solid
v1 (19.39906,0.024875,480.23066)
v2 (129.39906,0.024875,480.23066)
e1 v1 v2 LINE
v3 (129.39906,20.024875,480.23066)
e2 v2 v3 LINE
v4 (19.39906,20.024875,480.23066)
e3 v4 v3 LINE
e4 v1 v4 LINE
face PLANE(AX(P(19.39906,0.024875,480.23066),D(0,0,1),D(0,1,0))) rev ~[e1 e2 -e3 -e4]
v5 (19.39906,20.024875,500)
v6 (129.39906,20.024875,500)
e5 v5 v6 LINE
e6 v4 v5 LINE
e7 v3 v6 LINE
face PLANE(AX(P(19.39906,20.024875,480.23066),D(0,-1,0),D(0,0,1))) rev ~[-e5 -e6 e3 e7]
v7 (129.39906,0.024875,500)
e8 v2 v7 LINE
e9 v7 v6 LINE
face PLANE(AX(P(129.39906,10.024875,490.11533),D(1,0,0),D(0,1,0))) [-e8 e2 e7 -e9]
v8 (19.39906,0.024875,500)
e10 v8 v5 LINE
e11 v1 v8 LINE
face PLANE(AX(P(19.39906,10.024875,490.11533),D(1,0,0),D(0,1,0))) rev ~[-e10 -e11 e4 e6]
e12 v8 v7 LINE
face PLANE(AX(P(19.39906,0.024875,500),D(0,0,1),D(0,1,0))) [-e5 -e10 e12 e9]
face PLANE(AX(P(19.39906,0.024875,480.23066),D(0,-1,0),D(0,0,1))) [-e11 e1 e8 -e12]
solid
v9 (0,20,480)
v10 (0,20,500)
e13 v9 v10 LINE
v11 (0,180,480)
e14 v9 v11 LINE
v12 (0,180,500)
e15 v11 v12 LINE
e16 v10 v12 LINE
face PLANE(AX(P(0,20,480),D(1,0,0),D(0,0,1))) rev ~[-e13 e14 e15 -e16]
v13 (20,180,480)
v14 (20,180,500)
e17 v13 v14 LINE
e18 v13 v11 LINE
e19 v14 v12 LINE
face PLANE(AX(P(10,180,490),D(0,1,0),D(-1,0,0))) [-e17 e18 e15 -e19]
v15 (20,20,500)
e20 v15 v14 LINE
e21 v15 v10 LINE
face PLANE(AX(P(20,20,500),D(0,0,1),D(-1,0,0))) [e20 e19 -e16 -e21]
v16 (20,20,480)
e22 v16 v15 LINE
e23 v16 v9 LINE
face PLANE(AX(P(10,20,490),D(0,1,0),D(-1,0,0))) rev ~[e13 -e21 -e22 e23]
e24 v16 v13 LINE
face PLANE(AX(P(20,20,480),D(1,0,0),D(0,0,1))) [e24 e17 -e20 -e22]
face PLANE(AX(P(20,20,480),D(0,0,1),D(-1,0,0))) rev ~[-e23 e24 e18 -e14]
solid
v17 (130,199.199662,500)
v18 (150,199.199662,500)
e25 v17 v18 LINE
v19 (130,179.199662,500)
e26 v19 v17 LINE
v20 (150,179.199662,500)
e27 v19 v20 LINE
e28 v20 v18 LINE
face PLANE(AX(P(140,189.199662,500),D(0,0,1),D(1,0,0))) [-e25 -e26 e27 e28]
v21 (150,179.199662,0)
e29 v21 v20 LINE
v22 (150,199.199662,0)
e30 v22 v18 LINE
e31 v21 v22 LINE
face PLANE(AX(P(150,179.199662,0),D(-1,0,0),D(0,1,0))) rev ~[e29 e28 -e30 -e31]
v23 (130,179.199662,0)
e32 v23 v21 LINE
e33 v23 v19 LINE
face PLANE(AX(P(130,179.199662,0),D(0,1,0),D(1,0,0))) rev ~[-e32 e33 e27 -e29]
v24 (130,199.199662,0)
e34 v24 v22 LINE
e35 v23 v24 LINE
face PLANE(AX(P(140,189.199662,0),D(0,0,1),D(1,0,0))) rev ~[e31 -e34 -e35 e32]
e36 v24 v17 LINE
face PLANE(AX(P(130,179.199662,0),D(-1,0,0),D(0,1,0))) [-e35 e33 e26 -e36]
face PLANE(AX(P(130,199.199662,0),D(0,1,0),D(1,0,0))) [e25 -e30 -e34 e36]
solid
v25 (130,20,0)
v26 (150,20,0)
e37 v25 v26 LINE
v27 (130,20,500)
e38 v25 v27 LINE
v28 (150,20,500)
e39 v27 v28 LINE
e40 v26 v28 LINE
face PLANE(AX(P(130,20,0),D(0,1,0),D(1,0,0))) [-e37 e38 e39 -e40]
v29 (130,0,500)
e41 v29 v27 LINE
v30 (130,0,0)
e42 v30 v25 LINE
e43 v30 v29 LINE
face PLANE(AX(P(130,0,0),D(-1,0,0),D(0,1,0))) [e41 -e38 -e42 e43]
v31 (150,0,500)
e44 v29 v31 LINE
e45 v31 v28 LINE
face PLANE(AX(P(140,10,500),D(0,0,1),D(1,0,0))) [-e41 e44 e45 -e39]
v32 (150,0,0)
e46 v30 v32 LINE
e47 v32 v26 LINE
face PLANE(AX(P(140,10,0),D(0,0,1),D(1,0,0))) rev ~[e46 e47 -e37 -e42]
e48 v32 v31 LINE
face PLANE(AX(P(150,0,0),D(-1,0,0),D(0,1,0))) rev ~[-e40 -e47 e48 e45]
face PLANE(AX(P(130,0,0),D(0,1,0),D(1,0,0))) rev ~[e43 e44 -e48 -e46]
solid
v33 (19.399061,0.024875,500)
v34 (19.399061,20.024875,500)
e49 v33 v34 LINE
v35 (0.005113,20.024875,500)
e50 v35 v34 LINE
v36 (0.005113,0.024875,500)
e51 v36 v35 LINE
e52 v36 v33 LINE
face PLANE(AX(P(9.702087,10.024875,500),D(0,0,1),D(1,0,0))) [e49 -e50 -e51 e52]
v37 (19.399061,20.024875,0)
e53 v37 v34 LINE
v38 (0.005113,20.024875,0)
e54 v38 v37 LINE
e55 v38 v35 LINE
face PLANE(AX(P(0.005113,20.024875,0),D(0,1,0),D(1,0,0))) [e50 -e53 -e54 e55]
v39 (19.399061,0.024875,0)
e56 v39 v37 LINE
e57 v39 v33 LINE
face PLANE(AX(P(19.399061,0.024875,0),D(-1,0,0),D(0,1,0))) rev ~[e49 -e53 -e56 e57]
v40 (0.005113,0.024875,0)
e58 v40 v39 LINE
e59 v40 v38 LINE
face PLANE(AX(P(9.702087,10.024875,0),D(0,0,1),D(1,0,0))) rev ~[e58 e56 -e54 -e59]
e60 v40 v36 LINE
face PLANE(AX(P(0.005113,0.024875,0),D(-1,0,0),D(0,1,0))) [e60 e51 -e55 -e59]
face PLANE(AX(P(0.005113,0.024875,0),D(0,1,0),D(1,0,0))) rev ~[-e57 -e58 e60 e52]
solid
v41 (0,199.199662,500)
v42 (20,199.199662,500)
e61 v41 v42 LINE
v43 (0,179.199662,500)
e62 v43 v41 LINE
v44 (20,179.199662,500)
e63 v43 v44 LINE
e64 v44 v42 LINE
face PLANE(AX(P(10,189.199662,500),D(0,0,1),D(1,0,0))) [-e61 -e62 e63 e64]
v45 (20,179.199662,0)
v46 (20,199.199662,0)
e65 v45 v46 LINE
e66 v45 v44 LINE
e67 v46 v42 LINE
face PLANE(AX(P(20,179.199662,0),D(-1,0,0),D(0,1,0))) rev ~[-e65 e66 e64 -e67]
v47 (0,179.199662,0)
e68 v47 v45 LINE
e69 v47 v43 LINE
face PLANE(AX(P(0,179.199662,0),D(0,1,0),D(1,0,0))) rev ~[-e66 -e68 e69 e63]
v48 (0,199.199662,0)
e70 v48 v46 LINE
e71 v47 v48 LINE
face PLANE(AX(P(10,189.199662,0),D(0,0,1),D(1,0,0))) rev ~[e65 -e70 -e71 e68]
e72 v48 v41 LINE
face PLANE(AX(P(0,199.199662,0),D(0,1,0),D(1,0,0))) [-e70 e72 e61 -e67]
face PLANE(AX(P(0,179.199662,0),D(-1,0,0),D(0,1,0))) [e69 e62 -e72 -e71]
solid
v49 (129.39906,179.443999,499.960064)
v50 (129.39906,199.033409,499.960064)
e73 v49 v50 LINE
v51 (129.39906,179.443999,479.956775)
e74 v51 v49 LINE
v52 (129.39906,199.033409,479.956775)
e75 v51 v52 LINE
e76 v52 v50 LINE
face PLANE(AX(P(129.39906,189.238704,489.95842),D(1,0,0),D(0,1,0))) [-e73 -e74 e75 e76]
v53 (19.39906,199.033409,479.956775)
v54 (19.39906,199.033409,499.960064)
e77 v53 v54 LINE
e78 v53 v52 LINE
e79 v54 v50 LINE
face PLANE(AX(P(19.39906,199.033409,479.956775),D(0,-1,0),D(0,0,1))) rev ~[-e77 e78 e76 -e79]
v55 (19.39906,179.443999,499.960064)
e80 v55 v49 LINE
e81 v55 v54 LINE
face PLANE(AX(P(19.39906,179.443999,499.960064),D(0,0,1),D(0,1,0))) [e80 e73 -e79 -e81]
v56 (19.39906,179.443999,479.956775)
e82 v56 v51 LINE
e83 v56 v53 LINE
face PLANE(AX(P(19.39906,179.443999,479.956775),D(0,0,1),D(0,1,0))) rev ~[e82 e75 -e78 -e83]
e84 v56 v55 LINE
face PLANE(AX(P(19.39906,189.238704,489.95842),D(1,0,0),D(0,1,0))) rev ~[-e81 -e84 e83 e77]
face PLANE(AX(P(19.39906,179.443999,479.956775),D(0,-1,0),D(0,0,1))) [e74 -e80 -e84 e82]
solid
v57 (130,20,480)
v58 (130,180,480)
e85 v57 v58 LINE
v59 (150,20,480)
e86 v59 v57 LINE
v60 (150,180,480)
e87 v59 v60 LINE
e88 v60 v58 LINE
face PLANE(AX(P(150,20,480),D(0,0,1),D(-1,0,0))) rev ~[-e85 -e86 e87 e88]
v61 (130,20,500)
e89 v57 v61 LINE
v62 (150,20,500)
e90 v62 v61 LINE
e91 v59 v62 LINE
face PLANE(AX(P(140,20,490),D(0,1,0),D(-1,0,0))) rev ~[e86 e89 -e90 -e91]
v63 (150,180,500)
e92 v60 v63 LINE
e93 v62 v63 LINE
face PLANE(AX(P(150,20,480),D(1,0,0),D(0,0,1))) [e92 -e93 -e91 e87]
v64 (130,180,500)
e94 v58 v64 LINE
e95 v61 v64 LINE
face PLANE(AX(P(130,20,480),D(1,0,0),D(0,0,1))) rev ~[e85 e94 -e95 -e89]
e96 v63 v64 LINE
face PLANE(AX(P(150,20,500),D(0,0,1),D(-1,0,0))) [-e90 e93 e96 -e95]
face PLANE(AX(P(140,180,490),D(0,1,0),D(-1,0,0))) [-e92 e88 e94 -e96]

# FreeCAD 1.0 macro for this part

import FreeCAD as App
import Part
import Sketcher
from FreeCAD import Vector


def add_polygon(sketch, points):
    """Adds a closed chain of lines whose ends are joined by coincident constraints."""
    first, n = sketch.GeometryCount, len(points)
    for a, b in zip(points, points[1:] + points[:1]):
        sketch.addGeometry(Part.LineSegment(App.Vector(*a, 0), App.Vector(*b, 0)), False)
    for i in range(n):
        sketch.addConstraint(Sketcher.Constraint("Coincident", first + i, 2, first + (i + 1) % n, 1))

doc = App.newDocument("Part")
body = doc.addObject("PartDesign::Body", "Body")
body.AllowCompound = True

sketch1 = body.newObject("Sketcher::SketchObject", "Sketch")
sketch1.AttachmentSupport = (doc.getObject("XY_Plane"), [""])
sketch1.MapMode = "FlatFace"
add_polygon(sketch1, [(0, 199), (0, 179), (20, 179), (20, 199)])
add_polygon(sketch1, [(130, 199), (130, 179), (150, 179), (150, 199)])
add_polygon(sketch1, [(130, 20), (130, 0), (150, 0), (150, 20)])
add_polygon(sketch1, [(0, 20), (0, 0), (19, 0), (19, 20)])
sketch1.addConstraint([
    Sketcher.Constraint("Vertical", 0),
    Sketcher.Constraint("Horizontal", 1),
    Sketcher.Constraint("Vertical", 2),
    Sketcher.Constraint("Horizontal", 3),
    Sketcher.Constraint("Vertical", 4),
    Sketcher.Constraint("Horizontal", 5),
    Sketcher.Constraint("Vertical", 6),
    Sketcher.Constraint("Horizontal", 7),
    Sketcher.Constraint("Vertical", 8),
    Sketcher.Constraint("Horizontal", 9),
    Sketcher.Constraint("Vertical", 10),
    Sketcher.Constraint("Horizontal", 11),
    Sketcher.Constraint("Vertical", 12),
    Sketcher.Constraint("Horizontal", 13),
    Sketcher.Constraint("Vertical", 14),
    Sketcher.Constraint("Horizontal", 15),
    Sketcher.Constraint("PointOnObject", 0, 2, -2),
    Sketcher.Constraint("PointOnObject", 8, 2, -1),
    Sketcher.Constraint("Horizontal", 1, 2, 4, 2),
    Sketcher.Constraint("Horizontal", 3, 2, 6, 2),
    Sketcher.Constraint("Vertical", 7, 2, 8, 2),
    Sketcher.Constraint("Vertical", 6, 2, 9, 2),
    Sketcher.Constraint("Equal", 3, 5),
    Sketcher.Constraint("Equal", 11, 0),
    Sketcher.Constraint("Equal", 6, 8),
    Sketcher.Constraint("Equal", 10, 12),
    Sketcher.Constraint("DistanceX", 1, 1, 1, 2, 20.0),
    Sketcher.Constraint("DistanceX", -1, 1, 4, 2, 130.0),
    Sketcher.Constraint("DistanceX", 13, 1, 13, 2, 19.393947),
    Sketcher.Constraint("DistanceY", -1, 1, 0, 2, 179.199662),
    Sketcher.Constraint("DistanceX", -1, 1, 13, 2, 19.399061),
    Sketcher.Constraint("DistanceY", -1, 1, 12, 2, 0.024875),
])
pad1 = body.newObject("PartDesign::Pad", "Pad")
pad1.Profile = sketch1
pad1.Length = 500
body2 = doc.addObject("PartDesign::Body", "Body001")
body2.AllowCompound = True

sketch2 = body2.newObject("Sketcher::SketchObject", "Sketch001")
sketch2.AttachmentSupport = (doc.getObject("XZ_Plane001"), [""])
sketch2.MapMode = "FlatFace"
sketch2.AttachmentOffset = App.Placement(Vector(0, 0, -20), App.Rotation())
add_polygon(sketch2, [(150, 500), (150, 480), (130, 480), (130, 500)])
add_polygon(sketch2, [(20, 500), (20, 480), (0, 480), (0, 500)])
sketch2.addConstraint([
    Sketcher.Constraint("Vertical", 0),
    Sketcher.Constraint("Horizontal", 1),
    Sketcher.Constraint("Vertical", 2),
    Sketcher.Constraint("Horizontal", 3),
    Sketcher.Constraint("Vertical", 4),
    Sketcher.Constraint("Horizontal", 5),
    Sketcher.Constraint("Vertical", 6),
    Sketcher.Constraint("Horizontal", 7),
    Sketcher.Constraint("PointOnObject", 5, 2, -2),
    Sketcher.Constraint("Horizontal", 1, 2, 4, 2),
    Sketcher.Constraint("Horizontal", 3, 2, 6, 2),
    Sketcher.Constraint("Equal", 3, 5),
    Sketcher.Constraint("Equal", 7, 0),
    Sketcher.Constraint("DistanceX", 1, 2, 1, 1, 20.0),
    Sketcher.Constraint("DistanceX", -1, 1, 0, 2, 150.0),
    Sketcher.Constraint("DistanceY", -1, 1, 0, 2, 480.0),
])
pad2 = body2.newObject("PartDesign::Pad", "Pad001")
pad2.Profile = sketch2
pad2.Length = 160
pad2.Reversed = True
body3 = doc.addObject("PartDesign::Body", "Body002")
body3.AllowCompound = True

sketch3 = body3.newObject("Sketcher::SketchObject", "Sketch002")
sketch3.AttachmentSupport = (doc.getObject("YZ_Plane002"), [""])
sketch3.MapMode = "FlatFace"
sketch3.AttachmentOffset = App.Placement(Vector(0, 0, 19.39906), App.Rotation())
add_polygon(sketch3, [(0, 500), (0, 480), (20, 480), (20, 500)])
add_polygon(sketch3, [(179, 500), (179, 480), (199, 480), (199, 500)])
sketch3.addConstraint([
    Sketcher.Constraint("Vertical", 0),
    Sketcher.Constraint("Horizontal", 1),
    Sketcher.Constraint("Vertical", 2),
    Sketcher.Constraint("Horizontal", 3),
    Sketcher.Constraint("Vertical", 4),
    Sketcher.Constraint("Horizontal", 5),
    Sketcher.Constraint("Vertical", 6),
    Sketcher.Constraint("Horizontal", 7),
    Sketcher.Constraint("DistanceX", 1, 1, 1, 2, 20.0),
    Sketcher.Constraint("DistanceY", -1, 1, 2, 2, 500.0),
    Sketcher.Constraint("DistanceX", -1, 1, 4, 2, 179.443999),
    Sketcher.Constraint("DistanceX", 5, 1, 5, 2, 19.589409),
    Sketcher.Constraint("DistanceY", 0, 2, 0, 1, 19.769341),
    Sketcher.Constraint("DistanceY", 4, 2, 4, 1, 20.003289),
    Sketcher.Constraint("DistanceX", -1, 1, 0, 2, 0.024875),
    Sketcher.Constraint("DistanceY", -1, 1, 4, 2, 479.956775),
])
pad3 = body3.newObject("PartDesign::Pad", "Pad002")
pad3.Profile = sketch3
pad3.Length = 110

doc.recompute()
